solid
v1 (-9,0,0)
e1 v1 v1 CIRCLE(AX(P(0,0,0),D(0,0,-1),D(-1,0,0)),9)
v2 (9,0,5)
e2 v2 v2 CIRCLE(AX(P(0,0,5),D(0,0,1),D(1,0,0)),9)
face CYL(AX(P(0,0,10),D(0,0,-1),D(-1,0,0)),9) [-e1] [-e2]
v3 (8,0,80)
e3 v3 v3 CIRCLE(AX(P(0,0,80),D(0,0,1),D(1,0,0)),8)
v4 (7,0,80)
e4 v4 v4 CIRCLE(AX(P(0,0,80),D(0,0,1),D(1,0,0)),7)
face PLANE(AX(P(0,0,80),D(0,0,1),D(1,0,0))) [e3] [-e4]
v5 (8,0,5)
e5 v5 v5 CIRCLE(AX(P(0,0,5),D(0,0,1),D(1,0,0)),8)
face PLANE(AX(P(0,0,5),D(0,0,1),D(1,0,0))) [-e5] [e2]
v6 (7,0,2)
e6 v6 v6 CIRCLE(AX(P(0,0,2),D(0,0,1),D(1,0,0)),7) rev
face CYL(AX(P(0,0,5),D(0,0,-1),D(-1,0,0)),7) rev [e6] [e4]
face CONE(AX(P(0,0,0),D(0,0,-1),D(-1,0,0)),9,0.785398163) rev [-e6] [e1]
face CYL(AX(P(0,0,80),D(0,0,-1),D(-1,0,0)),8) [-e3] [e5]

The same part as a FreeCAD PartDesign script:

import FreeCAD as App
import Part
import Sketcher

V = App.Vector
Q = App.Units.Quantity


def edges_at(feature, points):
    """Names of the edges that pass closest to the given points."""
    edges = feature.Shape.Edges
    near = lambda p: min(range(len(edges)), key=lambda i: edges[i].distToShape(Part.Vertex(*p))[0])
    return sorted({f"Edge{near(p) + 1}" for p in points})

doc = App.newDocument("Part")
body = doc.addObject("PartDesign::Body", "Body")

# Sketch on XY plane
sketch1 = body.newObject("Sketcher::SketchObject", "Sketch")
sketch1.AttachmentSupport = (doc.getObject("XY_Plane"), [""])
sketch1.MapMode = "FlatFace"
sketch1.addGeometry([
    Part.Circle(V(0, 0, 0), V(0, 0, 1), 10),
    Part.Circle(V(0, 0, 0), V(0, 0, 1), 7),
], False)
sketch1.addConstraint([
    Sketcher.Constraint("Coincident", 0, 3, -1, 1),
    Sketcher.Constraint("Coincident", 1, 3, -1, 1),
    Sketcher.Constraint("Diameter", 1, Q("14 mm")),
    Sketcher.Constraint("Diameter", 0, Q("19.5 mm")),
])
pad1 = body.newObject("PartDesign::Pad", "Pad")
pad1.Profile = sketch1
pad1.Length = 5

# Sketch on XY plane
sketch2 = body.newObject("Sketcher::SketchObject", "Sketch001")
sketch2.AttachmentSupport = (doc.getObject("XY_Plane"), [""])
sketch2.MapMode = "FlatFace"
sketch2.AttachmentOffset = App.Placement(V(0, 0, 5), App.Rotation())
sketch2.addGeometry([
    Part.Circle(V(0, 0, 0), V(0, 0, 1), 8),
    Part.Circle(V(0, 0, 0), V(0, 0, 1), 7),
], False)
sketch2.addConstraint([
    Sketcher.Constraint("Coincident", 0, 3, -1, 1),
    Sketcher.Constraint("Coincident", 1, 3, -1, 1),
    Sketcher.Constraint("Diameter", 0, Q("16 mm")),
    Sketcher.Constraint("Diameter", 1, Q("14 mm")),
])
pad2 = body.newObject("PartDesign::Pad", "Pad001")
pad2.Profile = sketch2
pad2.Length = 75
doc.recompute()

chamfer = body.newObject("PartDesign::Chamfer", "Chamfer")
chamfer.Base = (pad2, edges_at(pad2, [(-7, 0, 0)]))
chamfer.Size = 2

# Sketch on XY plane
sketch3 = body.newObject("Sketcher::SketchObject", "Sketch002")
sketch3.AttachmentSupport = (doc.getObject("XY_Plane"), [""])
sketch3.MapMode = "FlatFace"
sketch3.addGeometry([
    Part.Circle(V(0, 0, 0), V(0, 0, 1), 10),
    Part.Circle(V(0, 0, 0), V(0, 0, 1), 9),
], False)
sketch3.addConstraint([
    Sketcher.Constraint("Coincident", 0, 3, -1, 1),
    Sketcher.Constraint("Coincident", 1, 3, -1, 1),
    Sketcher.Constraint("Diameter", 1, Q("18 mm")),
    Sketcher.Constraint("Diameter", 0, Q("19.5 mm")),
])
pocket1 = body.newObject("PartDesign::Pocket", "Pocket")
pocket1.Profile = sketch3
pocket1.Length = 10
pocket1.Reversed = True

doc.recompute()
